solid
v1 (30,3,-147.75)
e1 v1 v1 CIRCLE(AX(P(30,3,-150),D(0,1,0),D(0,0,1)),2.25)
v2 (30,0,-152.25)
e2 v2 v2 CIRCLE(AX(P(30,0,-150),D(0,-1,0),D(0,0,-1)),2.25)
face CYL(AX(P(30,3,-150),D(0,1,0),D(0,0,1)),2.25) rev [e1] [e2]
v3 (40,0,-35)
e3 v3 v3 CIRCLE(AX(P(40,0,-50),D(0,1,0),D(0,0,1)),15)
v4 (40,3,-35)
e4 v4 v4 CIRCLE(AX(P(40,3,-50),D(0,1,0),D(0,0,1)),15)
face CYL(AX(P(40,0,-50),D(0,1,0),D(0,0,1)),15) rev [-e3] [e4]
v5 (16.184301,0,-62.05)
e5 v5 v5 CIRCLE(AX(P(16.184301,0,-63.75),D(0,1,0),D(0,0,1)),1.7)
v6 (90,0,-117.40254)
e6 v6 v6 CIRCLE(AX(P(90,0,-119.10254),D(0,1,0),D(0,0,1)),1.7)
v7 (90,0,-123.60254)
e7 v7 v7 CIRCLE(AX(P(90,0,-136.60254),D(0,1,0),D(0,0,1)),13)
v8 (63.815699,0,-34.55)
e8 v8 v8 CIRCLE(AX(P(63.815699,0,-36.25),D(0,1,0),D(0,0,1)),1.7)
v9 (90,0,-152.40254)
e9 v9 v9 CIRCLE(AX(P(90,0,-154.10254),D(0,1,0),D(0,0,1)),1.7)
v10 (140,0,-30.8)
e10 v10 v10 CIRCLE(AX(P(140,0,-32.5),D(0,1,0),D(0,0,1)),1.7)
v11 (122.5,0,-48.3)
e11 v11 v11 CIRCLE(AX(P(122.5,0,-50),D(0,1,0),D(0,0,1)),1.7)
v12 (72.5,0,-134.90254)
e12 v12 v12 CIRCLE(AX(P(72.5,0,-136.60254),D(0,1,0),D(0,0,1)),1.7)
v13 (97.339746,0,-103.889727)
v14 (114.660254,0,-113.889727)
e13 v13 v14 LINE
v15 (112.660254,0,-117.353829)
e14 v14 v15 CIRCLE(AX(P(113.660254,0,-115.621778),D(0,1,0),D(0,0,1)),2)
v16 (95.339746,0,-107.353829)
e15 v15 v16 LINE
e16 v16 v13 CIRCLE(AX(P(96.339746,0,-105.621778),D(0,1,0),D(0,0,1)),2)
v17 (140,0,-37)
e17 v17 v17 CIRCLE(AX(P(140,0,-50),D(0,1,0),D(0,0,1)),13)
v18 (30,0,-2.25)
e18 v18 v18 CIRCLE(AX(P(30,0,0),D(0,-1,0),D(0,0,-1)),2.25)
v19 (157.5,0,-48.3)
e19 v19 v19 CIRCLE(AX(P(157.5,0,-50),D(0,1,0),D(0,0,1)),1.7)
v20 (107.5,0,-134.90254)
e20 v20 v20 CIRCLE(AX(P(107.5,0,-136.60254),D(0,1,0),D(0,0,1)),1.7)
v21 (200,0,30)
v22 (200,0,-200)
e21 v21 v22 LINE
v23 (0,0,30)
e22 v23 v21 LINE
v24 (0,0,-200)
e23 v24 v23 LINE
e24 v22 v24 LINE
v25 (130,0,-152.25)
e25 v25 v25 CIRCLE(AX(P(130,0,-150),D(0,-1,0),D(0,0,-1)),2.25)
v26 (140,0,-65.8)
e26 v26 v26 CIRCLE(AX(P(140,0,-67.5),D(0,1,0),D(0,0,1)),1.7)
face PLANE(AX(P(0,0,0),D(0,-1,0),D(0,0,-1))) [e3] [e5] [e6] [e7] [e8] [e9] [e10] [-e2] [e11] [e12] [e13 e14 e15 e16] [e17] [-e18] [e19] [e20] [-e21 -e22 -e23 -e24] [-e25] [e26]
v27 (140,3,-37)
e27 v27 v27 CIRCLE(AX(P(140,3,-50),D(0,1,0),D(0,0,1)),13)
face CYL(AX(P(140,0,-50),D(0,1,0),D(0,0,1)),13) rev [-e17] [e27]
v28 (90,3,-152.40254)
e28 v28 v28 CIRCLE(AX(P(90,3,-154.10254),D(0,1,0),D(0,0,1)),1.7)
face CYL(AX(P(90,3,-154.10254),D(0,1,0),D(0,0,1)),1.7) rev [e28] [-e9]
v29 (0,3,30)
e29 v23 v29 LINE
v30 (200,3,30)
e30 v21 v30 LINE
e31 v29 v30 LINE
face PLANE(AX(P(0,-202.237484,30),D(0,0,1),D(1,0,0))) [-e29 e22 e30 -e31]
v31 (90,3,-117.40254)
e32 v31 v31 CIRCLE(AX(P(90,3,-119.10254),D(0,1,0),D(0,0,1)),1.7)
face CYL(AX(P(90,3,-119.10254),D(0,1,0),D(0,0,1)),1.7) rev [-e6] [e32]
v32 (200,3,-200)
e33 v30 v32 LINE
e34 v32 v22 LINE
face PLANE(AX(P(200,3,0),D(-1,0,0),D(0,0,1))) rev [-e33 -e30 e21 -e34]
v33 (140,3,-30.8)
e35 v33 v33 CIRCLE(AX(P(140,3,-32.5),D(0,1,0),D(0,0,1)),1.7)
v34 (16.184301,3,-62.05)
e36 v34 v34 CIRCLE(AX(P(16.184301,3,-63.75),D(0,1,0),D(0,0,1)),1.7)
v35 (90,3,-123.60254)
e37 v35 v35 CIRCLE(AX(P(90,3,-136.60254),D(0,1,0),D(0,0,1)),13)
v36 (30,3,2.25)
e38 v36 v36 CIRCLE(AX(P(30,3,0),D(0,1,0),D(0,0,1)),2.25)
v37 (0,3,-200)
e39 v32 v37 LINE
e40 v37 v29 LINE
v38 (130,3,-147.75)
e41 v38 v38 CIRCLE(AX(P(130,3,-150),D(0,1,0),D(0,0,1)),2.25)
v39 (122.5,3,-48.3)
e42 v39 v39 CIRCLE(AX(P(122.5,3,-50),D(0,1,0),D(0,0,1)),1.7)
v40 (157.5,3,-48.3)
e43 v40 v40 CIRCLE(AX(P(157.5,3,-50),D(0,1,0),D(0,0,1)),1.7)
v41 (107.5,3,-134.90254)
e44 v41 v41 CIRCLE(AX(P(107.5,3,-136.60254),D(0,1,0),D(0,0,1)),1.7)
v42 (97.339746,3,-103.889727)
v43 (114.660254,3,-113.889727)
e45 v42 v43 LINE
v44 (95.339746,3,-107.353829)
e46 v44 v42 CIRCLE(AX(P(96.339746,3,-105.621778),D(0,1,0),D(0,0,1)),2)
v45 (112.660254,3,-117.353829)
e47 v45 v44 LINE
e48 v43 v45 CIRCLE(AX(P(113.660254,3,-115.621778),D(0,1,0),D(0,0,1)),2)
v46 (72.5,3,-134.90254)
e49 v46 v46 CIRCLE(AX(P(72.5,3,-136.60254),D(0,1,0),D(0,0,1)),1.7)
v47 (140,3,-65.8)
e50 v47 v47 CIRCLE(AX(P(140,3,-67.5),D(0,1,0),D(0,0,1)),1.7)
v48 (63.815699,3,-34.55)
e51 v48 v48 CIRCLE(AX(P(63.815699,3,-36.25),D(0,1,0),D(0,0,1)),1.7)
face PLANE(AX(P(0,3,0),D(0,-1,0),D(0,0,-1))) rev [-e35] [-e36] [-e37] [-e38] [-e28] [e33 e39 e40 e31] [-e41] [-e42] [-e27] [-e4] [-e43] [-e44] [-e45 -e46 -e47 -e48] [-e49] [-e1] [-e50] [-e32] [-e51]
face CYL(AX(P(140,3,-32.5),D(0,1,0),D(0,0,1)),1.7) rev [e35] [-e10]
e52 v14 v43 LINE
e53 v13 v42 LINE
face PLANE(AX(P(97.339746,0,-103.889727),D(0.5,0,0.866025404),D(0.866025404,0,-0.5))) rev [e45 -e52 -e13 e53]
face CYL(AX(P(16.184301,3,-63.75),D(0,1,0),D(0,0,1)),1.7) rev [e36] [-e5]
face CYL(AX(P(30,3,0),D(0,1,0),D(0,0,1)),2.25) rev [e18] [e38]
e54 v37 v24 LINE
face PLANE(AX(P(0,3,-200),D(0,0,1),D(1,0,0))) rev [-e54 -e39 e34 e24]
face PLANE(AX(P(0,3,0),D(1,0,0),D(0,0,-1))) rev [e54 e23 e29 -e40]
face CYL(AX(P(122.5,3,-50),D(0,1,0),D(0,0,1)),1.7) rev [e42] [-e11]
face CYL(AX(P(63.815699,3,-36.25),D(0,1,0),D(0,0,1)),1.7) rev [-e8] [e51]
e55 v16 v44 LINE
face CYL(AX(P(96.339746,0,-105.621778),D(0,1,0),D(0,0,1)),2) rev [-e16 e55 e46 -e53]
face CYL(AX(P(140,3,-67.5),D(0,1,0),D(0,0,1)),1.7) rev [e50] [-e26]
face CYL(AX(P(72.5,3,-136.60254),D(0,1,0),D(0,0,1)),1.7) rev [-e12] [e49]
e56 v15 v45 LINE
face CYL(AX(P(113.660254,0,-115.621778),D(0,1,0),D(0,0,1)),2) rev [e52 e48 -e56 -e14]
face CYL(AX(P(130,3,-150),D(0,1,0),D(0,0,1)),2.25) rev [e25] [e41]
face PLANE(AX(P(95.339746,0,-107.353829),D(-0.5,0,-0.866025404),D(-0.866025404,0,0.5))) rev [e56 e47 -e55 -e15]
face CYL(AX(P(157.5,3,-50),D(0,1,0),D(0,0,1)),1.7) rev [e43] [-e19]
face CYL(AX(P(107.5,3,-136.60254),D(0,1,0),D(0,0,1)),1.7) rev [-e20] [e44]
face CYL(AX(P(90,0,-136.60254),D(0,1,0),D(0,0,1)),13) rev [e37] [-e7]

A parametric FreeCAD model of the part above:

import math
import FreeCAD as App
import Part
import Sketcher
from FreeCAD import Vector
Q = App.Units.Quantity

doc = App.newDocument("Part")
body = doc.addObject("PartDesign::Body", "Body")

# Sketch on XZ plane
sketch1 = body.newObject("Sketcher::SketchObject", "Sketch")
sketch1.AttachmentSupport = (doc.getObject("XZ_Plane"), [""])
sketch1.MapMode = "FlatFace"
sketch1.addGeometry([
    Part.LineSegment(Vector(0, -200, 0), Vector(0, 0, 0)),
    Part.LineSegment(Vector(0, 0, 0), Vector(200, 0, 0)),
    Part.LineSegment(Vector(200, 0, 0), Vector(200, -200, 0)),
    Part.LineSegment(Vector(200, -200, 0), Vector(0, -200, 0)),
], False)
sketch1.addConstraint([
    Sketcher.Constraint("Coincident", 0, 2, 1, 1),
    Sketcher.Constraint("Coincident", 1, 2, 2, 1),
    Sketcher.Constraint("Coincident", 2, 2, 3, 1),
    Sketcher.Constraint("Coincident", 3, 2, 0, 1),
    Sketcher.Constraint("Vertical", 0),
    Sketcher.Constraint("Horizontal", 1),
    Sketcher.Constraint("Vertical", 2),
    Sketcher.Constraint("Horizontal", 3),
    Sketcher.Constraint("Coincident", 0, 2, -1, 1),
    Sketcher.Constraint("Equal", 3, 0),
    Sketcher.Constraint("DistanceX", 1, 1, 1, 2, 200.0),
])
pad1 = body.newObject("PartDesign::Pad", "Pad")
pad1.Profile = sketch1
pad1.Length = 3
pad1.Reversed = True

# Sketch on XZ plane
sketch2 = body.newObject("Sketcher::SketchObject", "Sketch001")
sketch2.AttachmentSupport = (doc.getObject("XZ_Plane"), [""])
sketch2.MapMode = "FlatFace"
sketch2.AttachmentOffset = App.Placement(Vector(0, 0, -3), App.Rotation())
sketch2.addGeometry([
    Part.Circle(Vector(90, -136.6, 0), Vector(0, 0, 1), 13),  # 0
    Part.Circle(Vector(140, -50, 0), Vector(0, 0, 1), 13),  # 1
    Part.Circle(Vector(40, -50, 0), Vector(0, 0, 1), 15),  # 2
    Part.LineSegment(Vector(112.7, -117.4, 0), Vector(95.3, -107.4, 0)),  # 3
    Part.ArcOfCircle(Part.Circle(Vector(96.3, -105.6, 0), Vector(0, 0, 1), 2), math.radians(60), math.radians(240)),  # 4
    Part.LineSegment(Vector(97.3, -103.9, 0), Vector(114.7, -113.9, 0)),  # 5
    Part.ArcOfCircle(Part.Circle(Vector(113.7, -115.6, 0), Vector(0, 0, 1), 2), math.radians(-120), math.radians(60)),  # 6
], False)
sketch2.addConstraint([
    Sketcher.Constraint("Tangent", 3, 2, 4, 2),
    Sketcher.Constraint("Tangent", 4, 1, 5, 1),
    Sketcher.Constraint("Tangent", 5, 2, 6, 2),
    Sketcher.Constraint("Tangent", 6, 1, 3, 1),
    Sketcher.Constraint("Equal", 0, 1),
    Sketcher.Constraint("Equal", 4, 6),
    Sketcher.Constraint("Horizontal", 1, 3, 2, 3),
    Sketcher.Constraint("Diameter", 0, 26.0),
    Sketcher.Constraint("Diameter", 2, 30.0),
    Sketcher.Constraint("Radius", 4, 2.0),
    Sketcher.Constraint("Angle", 3, Q("150 deg")),
    Sketcher.Constraint("Distance", 3, 20.0),
    Sketcher.Constraint("DistanceX", -1, 1, 0, 3, 90.0),
    Sketcher.Constraint("DistanceX", -1, 1, 1, 3, 140.0),
    Sketcher.Constraint("DistanceY", 1, 3, -1, 1, 50.0),
    Sketcher.Constraint("DistanceX", -1, 1, 2, 3, 40.0),
    Sketcher.Constraint("DistanceY", 0, 3, -1, 1, 136.60254),
    Sketcher.Constraint("DistanceY", 4, 3, -1, 1, 105.621778),
    Sketcher.Constraint("DistanceX", -1, 1, 4, 3, 96.339746),
])
pocket1 = body.newObject("PartDesign::Pocket", "Pocket")
pocket1.Profile = sketch2
pocket1.Type = "ThroughAll"
pocket1.Reversed = True

# Sketch on XZ plane
sketch3 = body.newObject("Sketcher::SketchObject", "Sketch002")
sketch3.AttachmentSupport = (doc.getObject("XZ_Plane"), [""])
sketch3.MapMode = "FlatFace"
sketch3.AttachmentOffset = App.Placement(Vector(0, 0, -3), App.Rotation())
sketch3.addGeometry([
    Part.Circle(Vector(140, -67.5, 0), Vector(0, 0, 1), 1.7),  # 0
    Part.Circle(Vector(122.5, -50, 0), Vector(0, 0, 1), 1.7),  # 1
    Part.Circle(Vector(157.5, -50, 0), Vector(0, 0, 1), 1.7),  # 2
    Part.Circle(Vector(140, -32.5, 0), Vector(0, 0, 1), 1.7),  # 3
    Part.Circle(Vector(90, -119.1, 0), Vector(0, 0, 1), 1.7),  # 4
    Part.Circle(Vector(72.5, -136.6, 0), Vector(0, 0, 1), 1.7),  # 5
    Part.Circle(Vector(107.5, -136.6, 0), Vector(0, 0, 1), 1.7),  # 6
    Part.Circle(Vector(90, -154.1, 0), Vector(0, 0, 1), 1.7),  # 7
], False)
sketch3.addConstraint([
    Sketcher.Constraint("Equal", 0, 1),
    Sketcher.Constraint("Equal", 1, 2),
    Sketcher.Constraint("Equal", 2, 3),
    Sketcher.Constraint("Equal", 3, 4),
    Sketcher.Constraint("Equal", 4, 5),
    Sketcher.Constraint("Equal", 5, 6),
    Sketcher.Constraint("Equal", 6, 7),
    Sketcher.Constraint("Horizontal", 1, 3, 2, 3),
    Sketcher.Constraint("Horizontal", 5, 3, 6, 3),
    Sketcher.Constraint("Vertical", 0, 3, 3, 3),
    Sketcher.Constraint("Vertical", 4, 3, 7, 3),
    Sketcher.Constraint("Diameter", 0, 3.4),
    Sketcher.Constraint("DistanceX", -1, 1, 0, 3, 140.0),
    Sketcher.Constraint("DistanceY", 1, 3, -1, 1, 50.0),
    Sketcher.Constraint("DistanceX", -1, 1, 4, 3, 90.0),
    Sketcher.Constraint("DistanceX", 1, 3, 2, 3, 35.0),
    Sketcher.Constraint("DistanceY", 0, 3, 3, 3, 35.0),
    Sketcher.Constraint("DistanceX", 5, 3, 1, 3, 50.0),
    Sketcher.Constraint("DistanceX", 5, 3, 6, 3, 35.0),
    Sketcher.Constraint("DistanceY", 7, 3, 4, 3, 35.0),
    Sketcher.Constraint("DistanceY", 0, 3, -1, 1, 67.5),
    Sketcher.Constraint("DistanceX", -1, 1, 1, 3, 122.5),
    Sketcher.Constraint("DistanceY", 5, 3, 4, 3, 17.5),
    Sketcher.Constraint("DistanceY", 4, 3, -1, 1, 119.10254),
])
doc.recompute()
hole = body.newObject("PartDesign::Hole", "Hole")
hole.Profile = sketch3
hole.ThreadType = "None"
hole.Diameter = 3.4
hole.DepthType = "ThroughAll"
hole.Reversed = True

# Sketch on XZ plane
sketch4 = body.newObject("Sketcher::SketchObject", "Sketch003")
sketch4.AttachmentSupport = (doc.getObject("XZ_Plane"), [""])
sketch4.MapMode = "FlatFace"
sketch4.AttachmentOffset = App.Placement(Vector(0, 0, -3), App.Rotation())
sketch4.addGeometry([
    Part.Circle(Vector(16.2, -63.8, 0), Vector(0, 0, 1), 1.7),
    Part.Circle(Vector(63.8, -36.2, 0), Vector(0, 0, 1), 1.7),
], False)
sketch4.addConstraint([
    Sketcher.Constraint("Equal", 0, 1),
    Sketcher.Constraint("Diameter", 0, 3.4),
    Sketcher.Constraint("DistanceY", 0, 3, 1, 3, 27.5),
    Sketcher.Constraint("DistanceY", 0, 3, -1, 1, 63.75),
    Sketcher.Constraint("DistanceX", -1, 1, 0, 3, 16.184301),
    Sketcher.Constraint("DistanceX", -1, 1, 1, 3, 63.815699),
])
doc.recompute()
hole2 = body.newObject("PartDesign::Hole", "Hole001")
hole2.Profile = sketch4
hole2.ThreadType = "None"
hole2.Diameter = 3.4
hole2.DepthType = "ThroughAll"
hole2.Reversed = True

# Sketch on XZ plane
sketch5 = body.newObject("Sketcher::SketchObject", "Sketch004")
sketch5.AttachmentSupport = (doc.getObject("XZ_Plane"), [""])
sketch5.MapMode = "FlatFace"
sketch5.AttachmentOffset = App.Placement(Vector(0, 0, -3), App.Rotation())
sketch5.addGeometry([
    Part.LineSegment(Vector(0, 0, 0), Vector(0, 30, 0)),
    Part.LineSegment(Vector(0, 30, 0), Vector(200, 30, 0)),
    Part.LineSegment(Vector(200, 30, 0), Vector(200, 0, 0)),
    Part.LineSegment(Vector(200, 0, 0), Vector(0, 0, 0)),
], False)
sketch5.addConstraint([
    Sketcher.Constraint("Coincident", 0, 2, 1, 1),
    Sketcher.Constraint("Coincident", 1, 2, 2, 1),
    Sketcher.Constraint("Coincident", 2, 2, 3, 1),
    Sketcher.Constraint("Coincident", 3, 2, 0, 1),
    Sketcher.Constraint("Vertical", 0),
    Sketcher.Constraint("Horizontal", 1),
    Sketcher.Constraint("Vertical", 2),
    Sketcher.Constraint("Horizontal", 3),
    Sketcher.Constraint("Coincident", 3, 2, -1, 1),
    Sketcher.Constraint("DistanceX", 1, 1, 1, 2, 200.0),
    Sketcher.Constraint("DistanceY", 0, 1, 0, 2, 30.0),
])
pad2 = body.newObject("PartDesign::Pad", "Pad001")
pad2.Profile = sketch5
pad2.Length = 3

# Sketch on XZ plane
sketch6 = body.newObject("Sketcher::SketchObject", "Sketch005")
sketch6.AttachmentSupport = (doc.getObject("XZ_Plane"), [""])
sketch6.MapMode = "FlatFace"
sketch6.AttachmentOffset = App.Placement(Vector(0, 0, -3), App.Rotation())
sketch6.addGeometry([
    Part.Circle(Vector(30, 0, 0), Vector(0, 0, 1), 2.2),
    Part.Circle(Vector(30, -150, 0), Vector(0, 0, 1), 2.2),
    Part.Circle(Vector(130, -150, 0), Vector(0, 0, 1), 2.2),
], False)
sketch6.addConstraint([
    Sketcher.Constraint("Equal", 0, 1),
    Sketcher.Constraint("Equal", 1, 2),
    Sketcher.Constraint("PointOnObject", 0, 3, -1),
    Sketcher.Constraint("Horizontal", 1, 3, 2, 3),
    Sketcher.Constraint("Vertical", 0, 3, 1, 3),
    Sketcher.Constraint("Diameter", 0, 4.5),
    Sketcher.Constraint("DistanceX", -1, 1, 0, 3, 30.0),
    Sketcher.Constraint("DistanceY", 1, 3, -1, 1, 150.0),
    Sketcher.Constraint("DistanceX", -1, 1, 2, 3, 130.0),
])
doc.recompute()
hole3 = body.newObject("PartDesign::Hole", "Hole002")
hole3.Profile = sketch6
hole3.ThreadType = "None"
hole3.Diameter = 4.5
hole3.DepthType = "Dimension"
hole3.Depth = 7
hole3.DrillPoint = "Angled"
hole3.DrillPointAngle = 118
hole3.Reversed = True

doc.recompute()
